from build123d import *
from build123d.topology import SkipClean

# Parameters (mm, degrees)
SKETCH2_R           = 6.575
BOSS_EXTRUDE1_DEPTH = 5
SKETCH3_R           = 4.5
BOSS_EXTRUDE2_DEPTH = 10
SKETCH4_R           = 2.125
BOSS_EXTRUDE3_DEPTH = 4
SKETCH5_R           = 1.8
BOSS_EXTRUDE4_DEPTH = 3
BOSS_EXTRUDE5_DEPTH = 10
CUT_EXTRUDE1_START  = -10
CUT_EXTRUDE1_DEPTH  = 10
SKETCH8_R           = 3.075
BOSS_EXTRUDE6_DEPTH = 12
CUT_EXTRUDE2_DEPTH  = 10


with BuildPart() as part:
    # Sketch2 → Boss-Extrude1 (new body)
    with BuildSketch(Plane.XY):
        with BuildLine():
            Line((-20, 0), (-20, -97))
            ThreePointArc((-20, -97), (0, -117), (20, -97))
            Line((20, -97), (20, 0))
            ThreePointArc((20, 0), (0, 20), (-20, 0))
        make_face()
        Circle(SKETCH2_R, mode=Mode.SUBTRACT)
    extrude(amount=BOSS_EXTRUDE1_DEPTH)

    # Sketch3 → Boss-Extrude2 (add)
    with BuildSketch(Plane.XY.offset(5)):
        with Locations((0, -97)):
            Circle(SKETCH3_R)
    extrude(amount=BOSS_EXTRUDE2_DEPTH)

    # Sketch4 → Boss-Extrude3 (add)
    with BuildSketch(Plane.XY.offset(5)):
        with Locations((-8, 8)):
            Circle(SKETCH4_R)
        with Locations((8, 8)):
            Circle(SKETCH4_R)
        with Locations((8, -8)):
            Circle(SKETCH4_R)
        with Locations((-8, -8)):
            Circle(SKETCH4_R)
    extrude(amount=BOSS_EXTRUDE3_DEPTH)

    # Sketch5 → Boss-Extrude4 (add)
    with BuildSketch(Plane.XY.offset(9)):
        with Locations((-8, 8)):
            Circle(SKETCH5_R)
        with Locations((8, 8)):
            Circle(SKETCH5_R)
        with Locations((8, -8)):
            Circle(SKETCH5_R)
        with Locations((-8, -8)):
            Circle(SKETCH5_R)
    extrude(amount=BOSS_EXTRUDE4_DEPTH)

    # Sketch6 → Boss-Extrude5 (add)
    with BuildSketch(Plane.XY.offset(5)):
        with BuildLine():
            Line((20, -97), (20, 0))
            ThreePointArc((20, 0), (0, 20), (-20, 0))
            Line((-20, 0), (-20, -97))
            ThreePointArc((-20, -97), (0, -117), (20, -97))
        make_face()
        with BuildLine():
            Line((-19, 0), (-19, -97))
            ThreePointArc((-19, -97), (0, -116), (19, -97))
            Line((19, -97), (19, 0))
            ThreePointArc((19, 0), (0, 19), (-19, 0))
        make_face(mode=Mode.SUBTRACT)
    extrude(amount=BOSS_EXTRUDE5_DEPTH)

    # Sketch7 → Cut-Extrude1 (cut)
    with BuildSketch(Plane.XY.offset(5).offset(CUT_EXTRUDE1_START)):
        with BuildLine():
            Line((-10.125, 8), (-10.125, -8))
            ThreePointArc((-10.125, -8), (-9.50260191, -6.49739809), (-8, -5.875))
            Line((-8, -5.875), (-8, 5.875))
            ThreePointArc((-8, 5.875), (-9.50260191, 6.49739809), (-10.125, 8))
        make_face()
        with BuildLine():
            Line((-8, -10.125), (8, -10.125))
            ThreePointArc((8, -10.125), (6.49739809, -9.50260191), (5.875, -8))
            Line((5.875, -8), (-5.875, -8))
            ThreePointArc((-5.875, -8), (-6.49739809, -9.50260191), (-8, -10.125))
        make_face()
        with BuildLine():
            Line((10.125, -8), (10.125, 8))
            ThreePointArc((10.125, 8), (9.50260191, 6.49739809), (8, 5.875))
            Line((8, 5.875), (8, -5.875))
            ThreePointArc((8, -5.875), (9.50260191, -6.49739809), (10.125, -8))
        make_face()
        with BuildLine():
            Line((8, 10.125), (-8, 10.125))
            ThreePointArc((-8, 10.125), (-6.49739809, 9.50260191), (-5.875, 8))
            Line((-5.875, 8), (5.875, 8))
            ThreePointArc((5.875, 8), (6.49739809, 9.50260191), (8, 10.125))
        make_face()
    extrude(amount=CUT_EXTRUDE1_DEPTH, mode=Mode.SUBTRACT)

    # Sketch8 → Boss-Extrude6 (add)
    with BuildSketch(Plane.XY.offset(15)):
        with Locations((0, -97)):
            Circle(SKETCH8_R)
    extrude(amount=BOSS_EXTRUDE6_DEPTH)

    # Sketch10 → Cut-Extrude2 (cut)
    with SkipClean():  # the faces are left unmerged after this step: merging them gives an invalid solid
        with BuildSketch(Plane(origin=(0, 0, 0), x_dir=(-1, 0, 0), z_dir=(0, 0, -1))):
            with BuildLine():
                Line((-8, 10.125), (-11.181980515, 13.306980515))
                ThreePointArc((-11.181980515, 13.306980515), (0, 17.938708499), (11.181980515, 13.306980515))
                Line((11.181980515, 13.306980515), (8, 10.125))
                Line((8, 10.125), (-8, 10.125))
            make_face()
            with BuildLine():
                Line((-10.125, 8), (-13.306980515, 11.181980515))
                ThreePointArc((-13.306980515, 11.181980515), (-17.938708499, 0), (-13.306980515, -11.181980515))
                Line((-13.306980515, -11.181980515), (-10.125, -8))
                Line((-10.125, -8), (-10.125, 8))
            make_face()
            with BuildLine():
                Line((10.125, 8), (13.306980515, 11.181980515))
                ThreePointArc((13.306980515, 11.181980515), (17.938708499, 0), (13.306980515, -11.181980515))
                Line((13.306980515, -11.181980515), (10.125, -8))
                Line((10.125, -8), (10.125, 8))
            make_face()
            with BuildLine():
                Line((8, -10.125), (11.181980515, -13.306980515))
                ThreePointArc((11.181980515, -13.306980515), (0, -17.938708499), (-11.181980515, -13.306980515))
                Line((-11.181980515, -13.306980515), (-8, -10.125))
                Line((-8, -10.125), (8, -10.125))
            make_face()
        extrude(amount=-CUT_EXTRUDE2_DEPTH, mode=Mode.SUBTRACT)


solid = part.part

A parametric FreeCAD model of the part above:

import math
import FreeCAD as App
import Part
import Sketcher
Q = App.Units.Quantity

doc = App.newDocument("Part")
body = doc.addObject("PartDesign::Body", "Body")

sketch1 = body.newObject("Sketcher::SketchObject", "Sketch")
sketch1.AttachmentSupport = (doc.getObject("XY_Plane"), [""])
sketch1.MapMode = "FlatFace"
sketch1.addGeometry([
    Part.LineSegment(App.Vector(-20, 0, 0), App.Vector(-20, -97, 0)),
    Part.ArcOfCircle(Part.Circle(App.Vector(0, -97, 0), App.Vector(0, 0, 1), 20), math.radians(180), math.radians(360)),
    Part.LineSegment(App.Vector(20, -97, 0), App.Vector(20, 0, 0)),
    Part.ArcOfCircle(Part.Circle(App.Vector(0, 0, 0), App.Vector(0, 0, 1), 20), math.radians(0), math.radians(180)),
    Part.Circle(App.Vector(0, 0, 0), App.Vector(0, 0, 1), 7),
], False)
sketch1.addConstraint([
    Sketcher.Constraint("Tangent", 0, 2, 1, 1),
    Sketcher.Constraint("Tangent", 1, 2, 2, 1),
    Sketcher.Constraint("Tangent", 2, 2, 3, 1),
    Sketcher.Constraint("Tangent", 3, 2, 0, 1),
    Sketcher.Constraint("Vertical", 0),
    Sketcher.Constraint("Vertical", 2),
    Sketcher.Constraint("Coincident", 3, 3, -1, 1),
    Sketcher.Constraint("Coincident", 4, 3, -1, 1),
    Sketcher.Constraint("Radius", 1, Q("20 mm")),
    Sketcher.Constraint("Diameter", 4, Q("13.15 mm")),
    Sketcher.Constraint("DistanceY", 0, 2, 0, 1, Q("97 mm")),
])
pad1 = body.newObject("PartDesign::Pad", "Pad")
pad1.Profile = sketch1
pad1.Length = 5

sketch2 = body.newObject("Sketcher::SketchObject", "Sketch001")
sketch2.AttachmentSupport = (doc.getObject("XY_Plane"), [""])
sketch2.MapMode = "FlatFace"
sketch2.AttachmentOffset = App.Placement(App.Vector(0, 0, 5), App.Rotation())
sketch2.addGeometry(Part.Circle(App.Vector(0, -97, 0), App.Vector(0, 0, 1), 4.5), False)
sketch2.addConstraint([
    Sketcher.Constraint("PointOnObject", 0, 3, -2),
    Sketcher.Constraint("Diameter", 0, Q("9 mm")),
    Sketcher.Constraint("DistanceY", 0, 3, -1, 1, Q("97 mm")),
])
pad2 = body.newObject("PartDesign::Pad", "Pad001")
pad2.Profile = sketch2
pad2.Length = 10

sketch3 = body.newObject("Sketcher::SketchObject", "Sketch002")
sketch3.AttachmentSupport = (doc.getObject("XY_Plane"), [""])
sketch3.MapMode = "FlatFace"
sketch3.AttachmentOffset = App.Placement(App.Vector(0, 0, 5), App.Rotation())
sketch3.addGeometry([
    Part.Circle(App.Vector(-8, 8, 0), App.Vector(0, 0, 1), 2.1),
    Part.Circle(App.Vector(8, 8, 0), App.Vector(0, 0, 1), 2.1),
    Part.Circle(App.Vector(8, -8, 0), App.Vector(0, 0, 1), 2.1),
    Part.Circle(App.Vector(-8, -8, 0), App.Vector(0, 0, 1), 2.1),
], False)
sketch3.addConstraint([
    Sketcher.Constraint("Equal", 0, 1),
    Sketcher.Constraint("Equal", 1, 2),
    Sketcher.Constraint("Equal", 2, 3),
    Sketcher.Constraint("Symmetric", 0, 3, 2, 3, -1, 1),
    Sketcher.Constraint("Symmetric", 1, 3, 3, 3, -1, 1),
    Sketcher.Constraint("Symmetric", 0, 3, 1, 3, -2),
    Sketcher.Constraint("Diameter", 0, Q("4.25 mm")),
    Sketcher.Constraint("DistanceX", 0, 3, -1, 1, Q("8 mm")),
    Sketcher.Constraint("DistanceY", -1, 1, 0, 3, Q("8 mm")),
])
pad3 = body.newObject("PartDesign::Pad", "Pad002")
pad3.Profile = sketch3
pad3.Length = 4

sketch4 = body.newObject("Sketcher::SketchObject", "Sketch003")
sketch4.AttachmentSupport = (doc.getObject("XY_Plane"), [""])
sketch4.MapMode = "FlatFace"
sketch4.AttachmentOffset = App.Placement(App.Vector(0, 0, 9), App.Rotation())
sketch4.addGeometry([
    Part.Circle(App.Vector(-8, 8, 0), App.Vector(0, 0, 1), 1.8),
    Part.Circle(App.Vector(8, 8, 0), App.Vector(0, 0, 1), 1.8),
    Part.Circle(App.Vector(8, -8, 0), App.Vector(0, 0, 1), 1.8),
    Part.Circle(App.Vector(-8, -8, 0), App.Vector(0, 0, 1), 1.8),
], False)
sketch4.addConstraint([
    Sketcher.Constraint("Equal", 0, 1),
    Sketcher.Constraint("Equal", 1, 2),
    Sketcher.Constraint("Equal", 2, 3),
    Sketcher.Constraint("Symmetric", 0, 3, 2, 3, -1, 1),
    Sketcher.Constraint("Symmetric", 1, 3, 3, 3, -1, 1),
    Sketcher.Constraint("Symmetric", 0, 3, 1, 3, -2),
    Sketcher.Constraint("Diameter", 0, Q("3.6 mm")),
    Sketcher.Constraint("DistanceX", 0, 3, -1, 1, Q("8 mm")),
    Sketcher.Constraint("DistanceY", -1, 1, 0, 3, Q("8 mm")),
])
pad4 = body.newObject("PartDesign::Pad", "Pad003")
pad4.Profile = sketch4
pad4.Length = 3

sketch5 = body.newObject("Sketcher::SketchObject", "Sketch004")
sketch5.AttachmentSupport = (doc.getObject("XY_Plane"), [""])
sketch5.MapMode = "FlatFace"
sketch5.AttachmentOffset = App.Placement(App.Vector(0, 0, 5), App.Rotation())
sketch5.addGeometry([
    Part.LineSegment(App.Vector(20, -97, 0), App.Vector(20, 0, 0)),
    Part.ArcOfCircle(Part.Circle(App.Vector(0, 0, 0), App.Vector(0, 0, 1), 20), math.radians(0), math.radians(180)),
    Part.LineSegment(App.Vector(-20, 0, 0), App.Vector(-20, -97, 0)),
    Part.ArcOfCircle(Part.Circle(App.Vector(0, -97, 0), App.Vector(0, 0, 1), 20), math.radians(180), math.radians(360)),
    Part.LineSegment(App.Vector(-19, -97, 0), App.Vector(-19, 0, 0)),
    Part.ArcOfCircle(Part.Circle(App.Vector(0, 0, 0), App.Vector(0, 0, 1), 19), math.radians(0), math.radians(180)),
    Part.LineSegment(App.Vector(19, 0, 0), App.Vector(19, -97, 0)),
    Part.ArcOfCircle(Part.Circle(App.Vector(0, -97, 0), App.Vector(0, 0, 1), 19), math.radians(180), math.radians(360)),
], False)
sketch5.addConstraint([
    Sketcher.Constraint("Tangent", 0, 2, 1, 1),
    Sketcher.Constraint("Tangent", 1, 2, 2, 1),
    Sketcher.Constraint("Tangent", 2, 2, 3, 1),
    Sketcher.Constraint("Tangent", 3, 2, 0, 1),
    Sketcher.Constraint("Tangent", 4, 2, 5, 2),
    Sketcher.Constraint("Tangent", 5, 1, 6, 1),
    Sketcher.Constraint("Tangent", 6, 2, 7, 2),
    Sketcher.Constraint("Tangent", 7, 1, 4, 1),
    Sketcher.Constraint("Vertical", 0),
    Sketcher.Constraint("Vertical", 2),
    Sketcher.Constraint("Vertical", 4),
    Sketcher.Constraint("Vertical", 6),
    Sketcher.Constraint("Coincident", 1, 3, -1, 1),
    Sketcher.Constraint("Coincident", 5, 3, -1, 1),
    Sketcher.Constraint("Horizontal", 7, 3, 2, 2),
    Sketcher.Constraint("Radius", 1, Q("20 mm")),
    Sketcher.Constraint("Radius", 5, Q("19 mm")),
    Sketcher.Constraint("DistanceY", 0, 1, 0, 2, Q("97 mm")),
])
pad5 = body.newObject("PartDesign::Pad", "Pad004")
pad5.Profile = sketch5
pad5.Length = 10

sketch6 = body.newObject("Sketcher::SketchObject", "Sketch005")
sketch6.AttachmentSupport = (doc.getObject("XY_Plane"), [""])
sketch6.MapMode = "FlatFace"
sketch6.AttachmentOffset = App.Placement(App.Vector(0, 0, -5), App.Rotation())
sketch6.addGeometry([
    Part.LineSegment(App.Vector(-10.1, 8, 0), App.Vector(-10.1, -8, 0)),
    Part.ArcOfCircle(Part.Circle(App.Vector(-8, -8, 0), App.Vector(0, 0, 1), 2.1), math.radians(90), math.radians(180)),
    Part.LineSegment(App.Vector(-8, -5.9, 0), App.Vector(-8, 5.9, 0)),
    Part.ArcOfCircle(Part.Circle(App.Vector(-8, 8, 0), App.Vector(0, 0, 1), 2.1), math.radians(180), math.radians(270)),
    Part.LineSegment(App.Vector(-8, -10.1, 0), App.Vector(8, -10.1, 0)),
    Part.ArcOfCircle(Part.Circle(App.Vector(8, -8, 0), App.Vector(0, 0, 1), 2.1), math.radians(180), math.radians(270)),
    Part.LineSegment(App.Vector(5.9, -8, 0), App.Vector(-5.9, -8, 0)),
    Part.ArcOfCircle(Part.Circle(App.Vector(-8, -8, 0), App.Vector(0, 0, 1), 2.1), math.radians(-90), math.radians(0)),
    Part.LineSegment(App.Vector(10.1, -8, 0), App.Vector(10.1, 8, 0)),
    Part.ArcOfCircle(Part.Circle(App.Vector(8, 8, 0), App.Vector(0, 0, 1), 2.1), math.radians(-90), math.radians(0)),
    Part.LineSegment(App.Vector(8, 5.9, 0), App.Vector(8, -5.9, 0)),
    Part.ArcOfCircle(Part.Circle(App.Vector(8, -8, 0), App.Vector(0, 0, 1), 2.1), math.radians(0), math.radians(90)),
    Part.LineSegment(App.Vector(8, 10.1, 0), App.Vector(-8, 10.1, 0)),
    Part.ArcOfCircle(Part.Circle(App.Vector(-8, 8, 0), App.Vector(0, 0, 1), 2.1), math.radians(0), math.radians(90)),
    Part.LineSegment(App.Vector(-5.9, 8, 0), App.Vector(5.9, 8, 0)),
    Part.ArcOfCircle(Part.Circle(App.Vector(8, 8, 0), App.Vector(0, 0, 1), 2.1), math.radians(90), math.radians(180)),
], False)
sketch6.addConstraint([
    Sketcher.Constraint("Tangent", 0, 2, 1, 2),
    Sketcher.Constraint("Coincident", 1, 1, 2, 1),
    Sketcher.Constraint("Coincident", 2, 2, 3, 2),
    Sketcher.Constraint("Tangent", 3, 1, 0, 1),
    Sketcher.Constraint("Tangent", 4, 2, 5, 2),
    Sketcher.Constraint("Coincident", 5, 1, 6, 1),
    Sketcher.Constraint("Coincident", 6, 2, 7, 2),
    Sketcher.Constraint("Tangent", 7, 1, 4, 1),
    Sketcher.Constraint("Tangent", 8, 2, 9, 2),
    Sketcher.Constraint("Coincident", 9, 1, 10, 1),
    Sketcher.Constraint("Coincident", 10, 2, 11, 2),
    Sketcher.Constraint("Tangent", 11, 1, 8, 1),
    Sketcher.Constraint("Tangent", 12, 2, 13, 2),
    Sketcher.Constraint("Coincident", 13, 1, 14, 1),
    Sketcher.Constraint("Coincident", 14, 2, 15, 2),
    Sketcher.Constraint("Tangent", 15, 1, 12, 1),
    Sketcher.Constraint("Vertical", 0),
    Sketcher.Constraint("Vertical", 2),
    Sketcher.Constraint("Horizontal", 4),
    Sketcher.Constraint("Horizontal", 6),
    Sketcher.Constraint("Vertical", 8),
    Sketcher.Constraint("Vertical", 10),
    Sketcher.Constraint("Horizontal", 12),
    Sketcher.Constraint("Horizontal", 14),
    Sketcher.Constraint("Coincident", 7, 3, 1, 3),
    Sketcher.Constraint("Coincident", 11, 3, 5, 3),
    Sketcher.Constraint("Coincident", 13, 3, 3, 3),
    Sketcher.Constraint("Coincident", 15, 3, 9, 3),
    Sketcher.Constraint("Equal", 1, 3),
    Sketcher.Constraint("Equal", 3, 5),
    Sketcher.Constraint("Equal", 5, 7),
    Sketcher.Constraint("Equal", 7, 9),
    Sketcher.Constraint("Equal", 9, 11),
    Sketcher.Constraint("Equal", 11, 13),
    Sketcher.Constraint("Equal", 13, 15),
    Sketcher.Constraint("Symmetric", 3, 3, 5, 3, -1, 1),
    Sketcher.Constraint("Horizontal", 0, 2, 5, 1),
    Sketcher.Constraint("Horizontal", 8, 2, 13, 1),
    Sketcher.Constraint("Vertical", 13, 3, 1, 1),
    Sketcher.Constraint("Vertical", 4, 2, 9, 1),
    Sketcher.Constraint("Equal", 12, 0),
    Sketcher.Constraint("DistanceX", 4, 1, 4, 2, Q("16 mm")),
    Sketcher.Constraint("Radius", 1, Q("2.125 mm")),
])
pocket1 = body.newObject("PartDesign::Pocket", "Pocket")
pocket1.Profile = sketch6
pocket1.Length = 10
pocket1.Reversed = True

sketch7 = body.newObject("Sketcher::SketchObject", "Sketch006")
sketch7.AttachmentSupport = (doc.getObject("XY_Plane"), [""])
sketch7.MapMode = "FlatFace"
sketch7.AttachmentOffset = App.Placement(App.Vector(0, 0, 15), App.Rotation())
sketch7.addGeometry(Part.Circle(App.Vector(0, -97, 0), App.Vector(0, 0, 1), 3.1), False)
sketch7.addConstraint([
    Sketcher.Constraint("PointOnObject", 0, 3, -2),
    Sketcher.Constraint("Diameter", 0, Q("6.15 mm")),
    Sketcher.Constraint("DistanceY", 0, 3, -1, 1, Q("97 mm")),
])
pad6 = body.newObject("PartDesign::Pad", "Pad005")
pad6.Profile = sketch7
pad6.Length = 12

sketch8 = body.newObject("Sketcher::SketchObject", "Sketch007")
sketch8.AttachmentSupport = (doc.getObject("XY_Plane"), [""])
sketch8.MapMode = "FlatFace"
sketch8.addGeometry([
    Part.LineSegment(App.Vector(11.2, 13.3, 0), App.Vector(8, 10.1, 0)),
    Part.LineSegment(App.Vector(8, 10.1, 0), App.Vector(-8, 10.1, 0)),
    Part.LineSegment(App.Vector(-8, 10.1, 0), App.Vector(-11.2, 13.3, 0)),
    Part.ArcOfCircle(Part.Circle(App.Vector(0, 2.1, 0), App.Vector(0, 0, 1), 15.8), math.radians(45), math.radians(135)),
    Part.LineSegment(App.Vector(10.1, 8, 0), App.Vector(13.3, 11.2, 0)),
    Part.ArcOfCircle(Part.Circle(App.Vector(2.1, 0, 0), App.Vector(0, 0, 1), 15.8), math.radians(-45), math.radians(45)),
    Part.LineSegment(App.Vector(13.3, -11.2, 0), App.Vector(10.1, -8, 0)),
    Part.LineSegment(App.Vector(10.1, -8, 0), App.Vector(10.1, 8, 0)),
    Part.LineSegment(App.Vector(-13.3, 11.2, 0), App.Vector(-10.1, 8, 0)),
    Part.LineSegment(App.Vector(-10.1, 8, 0), App.Vector(-10.1, -8, 0)),
    Part.LineSegment(App.Vector(-10.1, -8, 0), App.Vector(-13.3, -11.2, 0)),
    Part.ArcOfCircle(Part.Circle(App.Vector(-2.1, 0, 0), App.Vector(0, 0, 1), 15.8), math.radians(135), math.radians(225)),
    Part.LineSegment(App.Vector(-11.2, -13.3, 0), App.Vector(-8, -10.1, 0)),
    Part.LineSegment(App.Vector(-8, -10.1, 0), App.Vector(8, -10.1, 0)),
    Part.LineSegment(App.Vector(8, -10.1, 0), App.Vector(11.2, -13.3, 0)),
    Part.ArcOfCircle(Part.Circle(App.Vector(0, -2.1, 0), App.Vector(0, 0, 1), 15.8), math.radians(-135), math.radians(-45)),
], False)
sketch8.addConstraint([
    Sketcher.Constraint("Coincident", 0, 2, 1, 1),
    Sketcher.Constraint("Coincident", 1, 2, 2, 1),
    Sketcher.Constraint("Coincident", 2, 2, 3, 2),
    Sketcher.Constraint("Coincident", 3, 1, 0, 1),
    Sketcher.Constraint("Coincident", 4, 2, 5, 2),
    Sketcher.Constraint("Coincident", 5, 1, 6, 1),
    Sketcher.Constraint("Coincident", 6, 2, 7, 1),
    Sketcher.Constraint("Coincident", 7, 2, 4, 1),
    Sketcher.Constraint("Coincident", 8, 2, 9, 1),
    Sketcher.Constraint("Coincident", 9, 2, 10, 1),
    Sketcher.Constraint("Coincident", 10, 2, 11, 2),
    Sketcher.Constraint("Coincident", 11, 1, 8, 1),
    Sketcher.Constraint("Coincident", 12, 2, 13, 1),
    Sketcher.Constraint("Coincident", 13, 2, 14, 1),
    Sketcher.Constraint("Coincident", 14, 2, 15, 2),
    Sketcher.Constraint("Coincident", 15, 1, 12, 1),
    Sketcher.Constraint("Horizontal", 1),
    Sketcher.Constraint("Vertical", 7),
    Sketcher.Constraint("Vertical", 9),
    Sketcher.Constraint("Horizontal", 13),
    Sketcher.Constraint("Equal", 3, 5),
    Sketcher.Constraint("Equal", 5, 11),
    Sketcher.Constraint("Equal", 11, 15),
    Sketcher.Constraint("Symmetric", 5, 3, 11, 3, -1, 1),
    Sketcher.Constraint("Symmetric", 3, 3, 15, 3, -1, 1),
    Sketcher.Constraint("Symmetric", 6, 2, 8, 2, -1, 1),
    Sketcher.Constraint("Symmetric", 0, 2, 12, 2, -1, 1),
    Sketcher.Constraint("Symmetric", 2, 2, 3, 1, -2),
    Sketcher.Constraint("Symmetric", 5, 1, 10, 2, -2),
    Sketcher.Constraint("Perpendicular", 0, 2),
    Sketcher.Constraint("Perpendicular", 2, 4),
    Sketcher.Constraint("Perpendicular", 4, 6),
    Sketcher.Constraint("Parallel", 6, 8),
    Sketcher.Constraint("Perpendicular", 8, 10),
    Sketcher.Constraint("Parallel", 10, 12),
    Sketcher.Constraint("Perpendicular", 12, 14),
    Sketcher.Constraint("Horizontal", 7, 2, 8, 2),
    Sketcher.Constraint("Horizontal", 6, 2, 9, 2),
    Sketcher.Constraint("Horizontal", 14, 2, 15, 1),
    Sketcher.Constraint("Equal", 13, 7),
    Sketcher.Constraint("Equal", 2, 4),
    Sketcher.Constraint("DistanceX", 1, 2, 1, 1, Q("16 mm")),
    Sketcher.Constraint("DistanceY", 3, 3, 0, 2, Q("8 mm")),
    Sketcher.Constraint("Distance", 0, Q("4.5 mm")),
    Sketcher.Constraint("DistanceX", 11, 3, 5, 3, Q("4.25 mm")),
    Sketcher.Constraint("DistanceY", 15, 3, 3, 3, Q("4.25 mm")),
])
pocket2 = body.newObject("PartDesign::Pocket", "Pocket001")
pocket2.Profile = sketch8
pocket2.Length = 10
pocket2.Reversed = True

doc.recompute()
